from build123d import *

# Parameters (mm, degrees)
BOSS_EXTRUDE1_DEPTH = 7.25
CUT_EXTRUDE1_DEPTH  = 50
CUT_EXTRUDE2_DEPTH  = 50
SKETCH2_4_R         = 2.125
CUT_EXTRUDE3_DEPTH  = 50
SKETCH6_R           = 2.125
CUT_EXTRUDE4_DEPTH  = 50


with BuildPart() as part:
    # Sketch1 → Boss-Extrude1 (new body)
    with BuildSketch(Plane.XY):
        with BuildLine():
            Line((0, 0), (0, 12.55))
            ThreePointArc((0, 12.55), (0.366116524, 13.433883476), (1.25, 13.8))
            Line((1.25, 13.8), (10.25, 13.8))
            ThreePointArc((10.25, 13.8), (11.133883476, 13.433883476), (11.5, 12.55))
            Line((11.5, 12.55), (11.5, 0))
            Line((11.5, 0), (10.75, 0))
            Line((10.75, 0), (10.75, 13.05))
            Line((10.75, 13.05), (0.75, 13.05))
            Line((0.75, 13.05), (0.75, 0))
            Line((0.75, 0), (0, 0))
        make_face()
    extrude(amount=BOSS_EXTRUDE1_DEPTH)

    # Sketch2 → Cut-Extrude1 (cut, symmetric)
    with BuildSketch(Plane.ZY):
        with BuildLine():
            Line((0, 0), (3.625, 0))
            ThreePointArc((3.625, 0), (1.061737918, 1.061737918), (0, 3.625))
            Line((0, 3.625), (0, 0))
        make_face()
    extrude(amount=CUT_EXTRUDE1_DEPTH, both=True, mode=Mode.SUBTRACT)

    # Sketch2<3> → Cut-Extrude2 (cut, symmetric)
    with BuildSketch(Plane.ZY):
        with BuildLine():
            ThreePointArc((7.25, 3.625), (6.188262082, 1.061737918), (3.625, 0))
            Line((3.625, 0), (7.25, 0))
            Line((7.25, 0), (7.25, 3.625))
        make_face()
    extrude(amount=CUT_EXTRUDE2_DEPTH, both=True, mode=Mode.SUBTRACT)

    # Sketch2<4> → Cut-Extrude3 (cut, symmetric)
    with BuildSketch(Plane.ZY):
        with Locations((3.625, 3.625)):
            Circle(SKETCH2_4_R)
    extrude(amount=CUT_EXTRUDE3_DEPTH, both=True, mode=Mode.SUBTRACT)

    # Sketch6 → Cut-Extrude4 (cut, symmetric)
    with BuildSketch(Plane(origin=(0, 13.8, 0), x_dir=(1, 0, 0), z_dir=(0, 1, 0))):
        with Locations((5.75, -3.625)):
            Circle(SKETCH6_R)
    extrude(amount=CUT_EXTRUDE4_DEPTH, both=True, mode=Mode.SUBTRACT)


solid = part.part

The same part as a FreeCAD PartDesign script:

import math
import FreeCAD as App
import Part
import Sketcher
from FreeCAD import Vector

doc = App.newDocument("Part")
body = doc.addObject("PartDesign::Body", "Body")

sketch1 = body.newObject("Sketcher::SketchObject", "Sketch")
sketch1.AttachmentSupport = (doc.getObject("XY_Plane"), [""])
sketch1.MapMode = "FlatFace"
sketch1.addGeometry(Part.LineSegment(Vector(0, 12.6, 0), Vector(0, 0, 0)), False)
sketch1.addGeometry(Part.LineSegment(Vector(0, 0, 0), Vector(0.8, 0, 0)), False)
sketch1.addGeometry(Part.LineSegment(Vector(0.8, 0, 0), Vector(0.8, 13.1, 0)), False)
sketch1.addGeometry(Part.LineSegment(Vector(0.8, 13.1, 0), Vector(10.8, 13.1, 0)), False)
sketch1.addGeometry(Part.LineSegment(Vector(10.8, 13.1, 0), Vector(10.8, 0, 0)), False)
sketch1.addGeometry(Part.LineSegment(Vector(10.8, 0, 0), Vector(11.5, 0, 0)), False)
sketch1.addGeometry(Part.LineSegment(Vector(11.5, 0, 0), Vector(11.5, 12.6, 0)), False)
sketch1.addGeometry(Part.ArcOfCircle(Part.Circle(Vector(10.2, 12.5, 0), Vector(0, 0, 1), 1.3), math.radians(0), math.radians(90)), False)
sketch1.addGeometry(Part.LineSegment(Vector(10.2, 13.8, 0), Vector(1.2, 13.8, 0)), False)
sketch1.addGeometry(Part.ArcOfCircle(Part.Circle(Vector(1.3, 12.5, 0), Vector(0, 0, 1), 1.3), math.radians(90), math.radians(180)), False)
sketch1.addConstraint(Sketcher.Constraint("Coincident", 0, 2, 1, 1))
sketch1.addConstraint(Sketcher.Constraint("Coincident", 1, 2, 2, 1))
sketch1.addConstraint(Sketcher.Constraint("Coincident", 2, 2, 3, 1))
sketch1.addConstraint(Sketcher.Constraint("Coincident", 3, 2, 4, 1))
sketch1.addConstraint(Sketcher.Constraint("Coincident", 4, 2, 5, 1))
sketch1.addConstraint(Sketcher.Constraint("Coincident", 5, 2, 6, 1))
sketch1.addConstraint(Sketcher.Constraint("Tangent", 6, 2, 7, 1))
sketch1.addConstraint(Sketcher.Constraint("Tangent", 7, 2, 8, 1))
sketch1.addConstraint(Sketcher.Constraint("Tangent", 8, 2, 9, 1))
sketch1.addConstraint(Sketcher.Constraint("Tangent", 9, 2, 0, 1))
sketch1.addConstraint(Sketcher.Constraint("Vertical", 0))
sketch1.addConstraint(Sketcher.Constraint("Horizontal", 1))
sketch1.addConstraint(Sketcher.Constraint("Vertical", 2))
sketch1.addConstraint(Sketcher.Constraint("Horizontal", 3))
sketch1.addConstraint(Sketcher.Constraint("Vertical", 4))
sketch1.addConstraint(Sketcher.Constraint("Horizontal", 5))
sketch1.addConstraint(Sketcher.Constraint("Vertical", 6))
sketch1.addConstraint(Sketcher.Constraint("Horizontal", 8))
sketch1.addConstraint(Sketcher.Constraint("Coincident", 0, 2, -1, 1))
sketch1.addConstraint(Sketcher.Constraint("Equal", 7, 9))
sketch1.addConstraint(Sketcher.Constraint("PointOnObject", 4, 2, -1))
sketch1.addConstraint(Sketcher.Constraint("Equal", 1, 5))
sketch1.addConstraint(Sketcher.Constraint("DistanceX", 3, 1, 3, 2, 10.0))
sketch1.addConstraint(Sketcher.Constraint("DistanceX", 8, 2, 8, 1, 9.0))
sketch1.addConstraint(Sketcher.Constraint("Radius", 7, 1.25))
sketch1.addConstraint(Sketcher.Constraint("DistanceY", 0, 2, 0, 1, 12.55))
sketch1.addConstraint(Sketcher.Constraint("DistanceY", 2, 1, 2, 2, 13.05))
pad1 = body.newObject("PartDesign::Pad", "Pad")
pad1.Profile = sketch1
pad1.Length = 7.25

sketch2 = body.newObject("Sketcher::SketchObject", "Sketch001")
sketch2.AttachmentSupport = (doc.getObject("YZ_Plane"), [""])
sketch2.MapMode = "FlatFace"
sketch2.addGeometry(Part.LineSegment(Vector(0, 0, 0), Vector(0, 3.6, 0)), False)
sketch2.addGeometry(Part.ArcOfCircle(Part.Circle(Vector(3.6, 3.6, 0), Vector(0, 0, 1), 3.6), math.radians(180), math.radians(270)), False)
sketch2.addGeometry(Part.LineSegment(Vector(3.6, 0, 0), Vector(0, 0, 0)), False)
sketch2.addConstraint(Sketcher.Constraint("Tangent", 0, 2, 1, 1))
sketch2.addConstraint(Sketcher.Constraint("Tangent", 1, 2, 2, 1))
sketch2.addConstraint(Sketcher.Constraint("Coincident", 2, 2, 0, 1))
sketch2.addConstraint(Sketcher.Constraint("Vertical", 0))
sketch2.addConstraint(Sketcher.Constraint("Horizontal", 2))
sketch2.addConstraint(Sketcher.Constraint("Coincident", 2, 2, -1, 1))
sketch2.addConstraint(Sketcher.Constraint("Radius", 1, 3.625))
pocket1 = body.newObject("PartDesign::Pocket", "Pocket")
pocket1.Profile = sketch2
pocket1.Length = 100
pocket1.Midplane = True

sketch3 = body.newObject("Sketcher::SketchObject", "Sketch002")
sketch3.AttachmentSupport = (doc.getObject("YZ_Plane"), [""])
sketch3.MapMode = "FlatFace"
sketch3.addGeometry(Part.ArcOfCircle(Part.Circle(Vector(3.6, 3.6, 0), Vector(0, 0, 1), 3.6), math.radians(90), math.radians(180)), False)
sketch3.addGeometry(Part.LineSegment(Vector(0, 3.6, 0), Vector(0, 7.2, 0)), False)
sketch3.addGeometry(Part.LineSegment(Vector(0, 7.2, 0), Vector(3.6, 7.2, 0)), False)
sketch3.addConstraint(Sketcher.Constraint("Tangent", 0, 2, 1, 1))
sketch3.addConstraint(Sketcher.Constraint("Coincident", 1, 2, 2, 1))
sketch3.addConstraint(Sketcher.Constraint("Tangent", 2, 2, 0, 1))
sketch3.addConstraint(Sketcher.Constraint("Vertical", 1))
sketch3.addConstraint(Sketcher.Constraint("Horizontal", 2))
sketch3.addConstraint(Sketcher.Constraint("PointOnObject", 0, 2, -2))
sketch3.addConstraint(Sketcher.Constraint("Radius", 0, 3.625))
sketch3.addConstraint(Sketcher.Constraint("DistanceY", -1, 1, 1, 2, 7.25))
pocket2 = body.newObject("PartDesign::Pocket", "Pocket001")
pocket2.Profile = sketch3
pocket2.Length = 100
pocket2.Midplane = True

sketch4 = body.newObject("Sketcher::SketchObject", "Sketch003")
sketch4.AttachmentSupport = (doc.getObject("YZ_Plane"), [""])
sketch4.MapMode = "FlatFace"
sketch4.addGeometry(Part.Circle(Vector(3.6, 3.6, 0), Vector(0, 0, 1), 2.1), False)
sketch4.addConstraint(Sketcher.Constraint("Diameter", 0, 4.25))
sketch4.addConstraint(Sketcher.Constraint("DistanceX", -1, 1, 0, 3, 3.625))
sketch4.addConstraint(Sketcher.Constraint("DistanceY", -1, 1, 0, 3, 3.625))
pocket3 = body.newObject("PartDesign::Pocket", "Pocket002")
pocket3.Profile = sketch4
pocket3.Length = 100
pocket3.Midplane = True

sketch5 = body.newObject("Sketcher::SketchObject", "Sketch004")
sketch5.AttachmentSupport = (doc.getObject("XZ_Plane"), [""])
sketch5.MapMode = "FlatFace"
sketch5.AttachmentOffset = App.Placement(Vector(0, 0, -13.8), App.Rotation())
sketch5.addGeometry(Part.Circle(Vector(5.8, 3.6, 0), Vector(0, 0, 1), 2.1), False)
sketch5.addConstraint(Sketcher.Constraint("Diameter", 0, 4.25))
sketch5.addConstraint(Sketcher.Constraint("DistanceX", -1, 1, 0, 3, 5.75))
sketch5.addConstraint(Sketcher.Constraint("DistanceY", -1, 1, 0, 3, 3.625))
pocket4 = body.newObject("PartDesign::Pocket", "Pocket003")
pocket4.Profile = sketch5
pocket4.Length = 100
pocket4.Midplane = True

doc.recompute()
